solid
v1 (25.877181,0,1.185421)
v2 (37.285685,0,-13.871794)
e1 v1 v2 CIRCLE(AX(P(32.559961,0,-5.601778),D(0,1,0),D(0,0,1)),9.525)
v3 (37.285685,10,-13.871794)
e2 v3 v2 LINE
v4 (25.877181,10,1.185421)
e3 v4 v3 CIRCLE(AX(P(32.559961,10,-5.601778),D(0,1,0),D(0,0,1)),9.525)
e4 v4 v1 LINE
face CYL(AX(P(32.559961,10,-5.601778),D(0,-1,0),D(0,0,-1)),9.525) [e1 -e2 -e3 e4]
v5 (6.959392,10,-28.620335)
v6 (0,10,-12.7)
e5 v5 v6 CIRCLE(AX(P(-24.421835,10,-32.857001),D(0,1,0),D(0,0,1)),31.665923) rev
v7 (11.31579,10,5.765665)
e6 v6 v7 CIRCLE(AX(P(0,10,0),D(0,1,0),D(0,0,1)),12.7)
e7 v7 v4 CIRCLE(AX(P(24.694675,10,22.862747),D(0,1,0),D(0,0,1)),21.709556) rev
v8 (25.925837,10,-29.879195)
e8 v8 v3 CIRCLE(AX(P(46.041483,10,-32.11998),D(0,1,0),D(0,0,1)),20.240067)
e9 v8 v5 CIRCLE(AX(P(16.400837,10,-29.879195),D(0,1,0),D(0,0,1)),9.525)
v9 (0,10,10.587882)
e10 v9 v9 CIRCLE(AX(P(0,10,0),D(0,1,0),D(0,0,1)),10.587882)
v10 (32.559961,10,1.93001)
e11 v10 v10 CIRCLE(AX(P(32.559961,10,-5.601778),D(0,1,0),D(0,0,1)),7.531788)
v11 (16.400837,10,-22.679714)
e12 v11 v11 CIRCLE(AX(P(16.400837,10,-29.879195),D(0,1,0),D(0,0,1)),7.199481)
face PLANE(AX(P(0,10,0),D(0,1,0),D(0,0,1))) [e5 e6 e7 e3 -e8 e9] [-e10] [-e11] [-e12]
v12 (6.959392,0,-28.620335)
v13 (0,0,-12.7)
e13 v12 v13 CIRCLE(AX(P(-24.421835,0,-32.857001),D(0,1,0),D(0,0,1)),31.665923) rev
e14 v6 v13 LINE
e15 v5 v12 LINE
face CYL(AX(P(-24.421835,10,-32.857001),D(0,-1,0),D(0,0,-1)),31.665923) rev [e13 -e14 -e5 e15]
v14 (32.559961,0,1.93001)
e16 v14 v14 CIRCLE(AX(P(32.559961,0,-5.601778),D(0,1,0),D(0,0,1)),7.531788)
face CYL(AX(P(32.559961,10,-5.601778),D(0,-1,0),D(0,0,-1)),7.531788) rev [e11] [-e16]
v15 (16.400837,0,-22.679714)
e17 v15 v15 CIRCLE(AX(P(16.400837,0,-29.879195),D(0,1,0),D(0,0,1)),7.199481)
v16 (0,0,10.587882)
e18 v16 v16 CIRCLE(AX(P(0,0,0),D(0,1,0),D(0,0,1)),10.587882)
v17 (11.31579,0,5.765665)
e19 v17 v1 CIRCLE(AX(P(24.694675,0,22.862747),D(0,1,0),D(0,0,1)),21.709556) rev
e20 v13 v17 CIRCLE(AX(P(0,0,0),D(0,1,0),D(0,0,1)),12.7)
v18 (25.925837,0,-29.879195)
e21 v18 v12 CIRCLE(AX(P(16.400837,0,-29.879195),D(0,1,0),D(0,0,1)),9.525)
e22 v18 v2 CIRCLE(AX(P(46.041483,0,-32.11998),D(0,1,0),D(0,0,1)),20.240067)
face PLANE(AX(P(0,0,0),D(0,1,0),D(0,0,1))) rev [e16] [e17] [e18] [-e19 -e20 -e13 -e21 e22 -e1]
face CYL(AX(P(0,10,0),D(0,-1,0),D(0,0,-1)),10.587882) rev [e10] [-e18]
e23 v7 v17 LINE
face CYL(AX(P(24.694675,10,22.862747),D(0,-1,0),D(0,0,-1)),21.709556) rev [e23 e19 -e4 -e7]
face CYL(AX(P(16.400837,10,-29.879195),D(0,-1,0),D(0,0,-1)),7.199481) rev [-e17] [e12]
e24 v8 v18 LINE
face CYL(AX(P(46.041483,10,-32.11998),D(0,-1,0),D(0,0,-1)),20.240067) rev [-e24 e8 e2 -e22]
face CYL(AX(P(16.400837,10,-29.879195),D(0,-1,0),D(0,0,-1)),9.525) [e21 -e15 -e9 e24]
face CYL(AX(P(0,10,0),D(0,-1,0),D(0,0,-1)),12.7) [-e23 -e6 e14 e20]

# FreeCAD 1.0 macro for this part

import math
import FreeCAD as App
import Part
import Sketcher
from FreeCAD import Vector
Q = App.Units.Quantity

doc = App.newDocument("Part")
body = doc.addObject("PartDesign::Body", "Body")

sketch1 = body.newObject("Sketcher::SketchObject", "Sketch")
sketch1.AttachmentSupport = (doc.getObject("XZ_Plane"), [""])
sketch1.MapMode = "FlatFace"
sketch1.addGeometry([
    Part.ArcOfCircle(Part.Circle(Vector(24.694675, 22.862747, 0), Vector(0, 0, 1), 21.709555), math.radians(-128.044049), math.radians(-86.877591)),
    Part.ArcOfCircle(Part.Circle(Vector(32.559961, -5.601778, 0), Vector(0, 0, 1), 9.525), math.radians(0), math.radians(134.555856)),
    Part.ArcOfCircle(Part.Circle(Vector(32.559961, -5.601778, 0), Vector(0, 0, 1), 9.525), math.radians(-60.255119), math.radians(0)),
    Part.ArcOfCircle(Part.Circle(Vector(46.041483, -32.11998, 0), Vector(0, 0, 1), 20.240067), math.radians(115.632504), math.radians(118.263921)),
    Part.ArcOfCircle(Part.Circle(Vector(46.041483, -32.11998, 0), Vector(0, 0, 1), 20.240067), math.radians(118.263921), math.radians(173.643732)),
    Part.ArcOfCircle(Part.Circle(Vector(16.400837, -29.879195, 0), Vector(0, 0, 1), 9.525), math.radians(172.405357), math.radians(360)),
    Part.ArcOfCircle(Part.Circle(Vector(-24.421835, -32.857001, 0), Vector(0, 0, 1), 31.665923), math.radians(7.688807), math.radians(39.535176)),
    Part.ArcOfCircle(Part.Circle(Vector(0, 0, 0), Vector(0, 0, 1), 12.7), math.radians(26.999925), math.radians(270)),
    Part.Circle(Vector(0, 0, 0), Vector(0, 0, 1), 10.587882),
    Part.Circle(Vector(32.559961, -5.601778, 0), Vector(0, 0, 1), 7.531788),
    Part.Circle(Vector(16.400837, -29.879195, 0), Vector(0, 0, 1), 7.199481),
], False)
sketch1.addConstraint([
    Sketcher.Constraint("Coincident", 0, 2, 1, 2),
    Sketcher.Constraint("Tangent", 1, 1, 2, 2),
    Sketcher.Constraint("Coincident", 2, 1, 3, 1),
    Sketcher.Constraint("Tangent", 3, 2, 4, 1),
    Sketcher.Constraint("Coincident", 4, 2, 5, 2),
    Sketcher.Constraint("Coincident", 5, 1, 6, 1),
    Sketcher.Constraint("Coincident", 6, 2, 7, 2),
    Sketcher.Constraint("Coincident", 7, 1, 0, 1),
    Sketcher.Constraint("Coincident", 7, 3, -1, 1),
    Sketcher.Constraint("Coincident", 8, 3, -1, 1),
    Sketcher.Constraint("Coincident", 9, 3, 1, 3),
    Sketcher.Constraint("Coincident", 10, 3, 5, 3),
    Sketcher.Constraint("Equal", 1, 2),
    Sketcher.Constraint("Equal", 3, 4),
    Sketcher.Constraint("Equal", 2, 5),
    Sketcher.Constraint("PointOnObject", 6, 2, -2),
    Sketcher.Constraint("Horizontal", 9, 3, 1, 1),
    Sketcher.Constraint("Horizontal", 10, 3, 4, 2),
    Sketcher.Constraint("Radius", 7, Q("0.5 in")),
    Sketcher.Constraint("Radius", 1, Q("0.375 in")),
    Sketcher.Constraint("Diameter", 10, Q("14.398961 mm")),
    Sketcher.Constraint("Diameter", 8, Q("21.175765 mm")),
    Sketcher.Constraint("Diameter", 9, Q("15.063577 mm")),
    Sketcher.Constraint("Radius", 0, Q("21.709555 mm")),
    Sketcher.Constraint("Radius", 3, Q("20.240067 mm")),
    Sketcher.Constraint("Radius", 6, Q("31.665923 mm")),
    Sketcher.Constraint("DistanceY", 6, 3, -1, 1, Q("32.857001 mm")),
    Sketcher.Constraint("DistanceY", 1, 3, 0, 2, Q("6.787199 mm")),
    Sketcher.Constraint("DistanceY", 4, 2, 2, 1, Q("16.007401 mm")),
    Sketcher.Constraint("DistanceX", -1, 1, 1, 3, Q("32.559961 mm")),
    Sketcher.Constraint("DistanceY", 1, 3, -1, 1, Q("5.601778 mm")),
    Sketcher.Constraint("DistanceY", 3, 3, -1, 1, Q("32.11998 mm")),
    Sketcher.Constraint("DistanceX", -1, 1, 3, 2, Q("36.457129 mm")),
    Sketcher.Constraint("DistanceY", 3, 2, -1, 1, Q("14.293021 mm")),
    Sketcher.Constraint("DistanceX", -1, 1, 7, 1, Q("11.31579 mm")),
])
pad1 = body.newObject("PartDesign::Pad", "Pad")
pad1.Profile = sketch1
pad1.Length = 10
pad1.Reversed = True

doc.recompute()
